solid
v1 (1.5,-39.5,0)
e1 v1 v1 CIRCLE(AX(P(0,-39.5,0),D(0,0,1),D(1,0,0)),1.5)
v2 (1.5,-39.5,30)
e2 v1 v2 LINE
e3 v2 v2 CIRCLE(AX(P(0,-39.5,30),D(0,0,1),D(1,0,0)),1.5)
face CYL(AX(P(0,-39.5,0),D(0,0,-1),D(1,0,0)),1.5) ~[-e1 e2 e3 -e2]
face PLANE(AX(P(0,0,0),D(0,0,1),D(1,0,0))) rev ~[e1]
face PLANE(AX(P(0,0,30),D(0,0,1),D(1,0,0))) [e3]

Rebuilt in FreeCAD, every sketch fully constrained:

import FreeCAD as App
import Part
import Sketcher
from FreeCAD import Vector

doc = App.newDocument("Part")
body = doc.addObject("PartDesign::Body", "Body")

# Sketch on XY plane
sketch1 = doc.addObject("Sketcher::SketchObject", "Sketch")
body.addObject(sketch1)
sketch1.AttachmentSupport = (doc.XY_Plane, [""])
sketch1.MapMode = "FlatFace"
sketch1.addGeometry(Part.Circle(Vector(0, -39.5, 0), Vector(0, 0, 1), 1.5), False)
sketch1.addConstraint([
    Sketcher.Constraint("PointOnObject", 0, 3, -2),
    Sketcher.Constraint("Diameter", 0, 3.0),
    Sketcher.Constraint("DistanceY", 0, 3, -1, 1, 39.5),
])
pad1 = doc.addObject("PartDesign::Pad", "Pad")
body.addObject(pad1)
pad1.Profile = sketch1
pad1.Length = 30

doc.recompute()
